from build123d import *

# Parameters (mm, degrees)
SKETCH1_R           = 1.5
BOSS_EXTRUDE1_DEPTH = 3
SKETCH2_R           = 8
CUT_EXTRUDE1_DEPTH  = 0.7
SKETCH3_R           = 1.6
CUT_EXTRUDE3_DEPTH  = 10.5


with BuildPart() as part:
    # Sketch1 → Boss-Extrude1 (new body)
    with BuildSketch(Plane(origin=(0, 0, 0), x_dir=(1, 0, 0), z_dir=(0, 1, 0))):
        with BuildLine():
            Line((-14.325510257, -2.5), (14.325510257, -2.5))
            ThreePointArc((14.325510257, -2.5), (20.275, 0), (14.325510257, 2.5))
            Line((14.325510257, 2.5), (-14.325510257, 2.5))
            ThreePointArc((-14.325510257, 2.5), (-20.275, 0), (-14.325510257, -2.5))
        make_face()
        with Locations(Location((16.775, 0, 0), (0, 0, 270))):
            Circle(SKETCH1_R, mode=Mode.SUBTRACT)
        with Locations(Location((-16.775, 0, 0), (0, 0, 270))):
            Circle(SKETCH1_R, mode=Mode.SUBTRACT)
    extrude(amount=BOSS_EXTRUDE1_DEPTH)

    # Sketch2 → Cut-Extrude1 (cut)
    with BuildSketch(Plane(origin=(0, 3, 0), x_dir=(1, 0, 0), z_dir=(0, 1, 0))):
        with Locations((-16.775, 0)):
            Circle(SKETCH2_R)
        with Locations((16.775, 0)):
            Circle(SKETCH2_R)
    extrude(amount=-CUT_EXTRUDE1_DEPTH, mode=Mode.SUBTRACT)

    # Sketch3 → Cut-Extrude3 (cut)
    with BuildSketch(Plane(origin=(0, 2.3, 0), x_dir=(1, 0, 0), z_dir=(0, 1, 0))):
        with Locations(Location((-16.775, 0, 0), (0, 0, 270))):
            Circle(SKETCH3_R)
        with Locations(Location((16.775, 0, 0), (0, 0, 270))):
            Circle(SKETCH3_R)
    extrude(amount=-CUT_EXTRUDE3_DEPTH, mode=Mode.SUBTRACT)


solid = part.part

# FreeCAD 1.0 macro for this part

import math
import FreeCAD as App
import Part
import Sketcher

V = App.Vector

doc = App.newDocument("Part")
body = doc.addObject("PartDesign::Body", "Body")

# Sketch on XZ plane
sketch1 = body.newObject("Sketcher::SketchObject", "Sketch")
sketch1.AttachmentSupport = (doc.getObject("XZ_Plane"), [""])
sketch1.MapMode = "FlatFace"
sketch1.addGeometry([
    Part.LineSegment(V(-14.3, 2.5, 0), V(14.3, 2.5, 0)),  # 0
    Part.ArcOfCircle(Part.Circle(V(16.8, 0, 0), V(0, 0, 1), 3.5), math.radians(-134), math.radians(134)),  # 1
    Part.LineSegment(V(14.3, -2.5, 0), V(-14.3, -2.5, 0)),  # 2
    Part.ArcOfCircle(Part.Circle(V(-16.8, 0, 0), V(0, 0, 1), 3.5), math.radians(46), math.radians(314)),  # 3
    Part.Circle(V(-16.8, 0, 0), V(0, 0, 1), 1.5),  # 4
    Part.Circle(V(16.8, 0, 0), V(0, 0, 1), 1.5),  # 5
], False)
sketch1.addConstraint([
    Sketcher.Constraint("Coincident", 0, 2, 1, 2),
    Sketcher.Constraint("Coincident", 1, 1, 2, 1),
    Sketcher.Constraint("Coincident", 2, 2, 3, 2),
    Sketcher.Constraint("Coincident", 3, 1, 0, 1),
    Sketcher.Constraint("Horizontal", 0),
    Sketcher.Constraint("Horizontal", 2),
    Sketcher.Constraint("Coincident", 4, 3, 3, 3),
    Sketcher.Constraint("Coincident", 5, 3, 1, 3),
    Sketcher.Constraint("Equal", 1, 3),
    Sketcher.Constraint("Equal", 4, 5),
    Sketcher.Constraint("Symmetric", 1, 3, 3, 3, -1, 1),
    Sketcher.Constraint("Symmetric", 0, 2, 1, 1, -1),
    Sketcher.Constraint("Diameter", 4, 3.0),
    Sketcher.Constraint("Radius", 1, 3.5),
    Sketcher.Constraint("DistanceY", 1, 1, 0, 2, 5.0),
    Sketcher.Constraint("DistanceX", 3, 3, 1, 3, 33.55),
])
pad1 = body.newObject("PartDesign::Pad", "Pad")
pad1.Profile = sketch1
pad1.Length = 3
pad1.Reversed = True

# Sketch on XZ plane
sketch2 = body.newObject("Sketcher::SketchObject", "Sketch001")
sketch2.AttachmentSupport = (doc.getObject("XZ_Plane"), [""])
sketch2.MapMode = "FlatFace"
sketch2.AttachmentOffset = App.Placement(V(0, 0, -3), App.Rotation())
sketch2.addGeometry([
    Part.Circle(V(-17, 0, 0), V(0, 0, 1), 8),
    Part.Circle(V(17, 0, 0), V(0, 0, 1), 8),
], False)
sketch2.addConstraint([
    Sketcher.Constraint("Equal", 0, 1),
    Sketcher.Constraint("Symmetric", 0, 3, 1, 3, -1, 1),
    Sketcher.Constraint("PointOnObject", 0, 3, -1),
    Sketcher.Constraint("Diameter", 0, 16.0),
    Sketcher.Constraint("DistanceX", 0, 3, 1, 3, 33.55),
])
pocket1 = body.newObject("PartDesign::Pocket", "Pocket")
pocket1.Profile = sketch2
pocket1.Length = 0.7
pocket1.Reversed = True

# Sketch on XZ plane
sketch3 = body.newObject("Sketcher::SketchObject", "Sketch002")
sketch3.AttachmentSupport = (doc.getObject("XZ_Plane"), [""])
sketch3.MapMode = "FlatFace"
sketch3.AttachmentOffset = App.Placement(V(0, 0, -2.3), App.Rotation())
sketch3.addGeometry([
    Part.Circle(V(-16.8, 0, 0), V(0, 0, 1), 1.6),
    Part.Circle(V(16.8, 0, 0), V(0, 0, 1), 1.6),
], False)
sketch3.addConstraint([
    Sketcher.Constraint("Equal", 0, 1),
    Sketcher.Constraint("Symmetric", 0, 3, 1, 3, -1, 1),
    Sketcher.Constraint("PointOnObject", 0, 3, -1),
    Sketcher.Constraint("Diameter", 0, 3.2),
    Sketcher.Constraint("DistanceX", 0, 3, 1, 3, 33.55),
])
pocket2 = body.newObject("PartDesign::Pocket", "Pocket001")
pocket2.Profile = sketch3
pocket2.Length = 10.5
pocket2.Reversed = True

doc.recompute()
